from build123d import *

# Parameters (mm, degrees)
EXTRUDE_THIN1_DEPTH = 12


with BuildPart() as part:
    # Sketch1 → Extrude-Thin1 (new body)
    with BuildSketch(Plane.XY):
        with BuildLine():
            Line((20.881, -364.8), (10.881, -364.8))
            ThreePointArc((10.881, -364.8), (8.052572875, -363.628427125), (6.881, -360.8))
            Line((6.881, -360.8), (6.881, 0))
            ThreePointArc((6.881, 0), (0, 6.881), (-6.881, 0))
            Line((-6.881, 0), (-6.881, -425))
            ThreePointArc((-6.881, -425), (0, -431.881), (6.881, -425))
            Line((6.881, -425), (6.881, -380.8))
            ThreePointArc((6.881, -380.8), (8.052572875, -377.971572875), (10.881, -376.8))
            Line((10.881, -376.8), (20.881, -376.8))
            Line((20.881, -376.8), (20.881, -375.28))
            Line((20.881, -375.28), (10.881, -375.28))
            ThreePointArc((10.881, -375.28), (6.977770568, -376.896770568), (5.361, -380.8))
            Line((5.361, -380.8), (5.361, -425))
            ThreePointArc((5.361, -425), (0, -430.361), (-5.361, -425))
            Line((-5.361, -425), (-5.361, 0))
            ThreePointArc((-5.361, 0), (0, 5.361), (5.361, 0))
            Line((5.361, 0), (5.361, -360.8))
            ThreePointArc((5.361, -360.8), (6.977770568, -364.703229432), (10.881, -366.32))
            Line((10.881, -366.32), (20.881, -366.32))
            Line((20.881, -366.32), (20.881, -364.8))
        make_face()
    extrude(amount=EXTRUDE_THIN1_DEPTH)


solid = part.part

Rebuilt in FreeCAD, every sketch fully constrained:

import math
import FreeCAD as App
import Part
import Sketcher

V = App.Vector

doc = App.newDocument("Part")
body = doc.addObject("PartDesign::Body", "Body")

# Sketch on XY plane
sketch1 = body.newObject("Sketcher::SketchObject", "Sketch")
sketch1.AttachmentSupport = (doc.getObject("XY_Plane"), [""])
sketch1.MapMode = "FlatFace"
sketch1.addGeometry([
    Part.LineSegment(V(20.881, -364.8, 0), V(10.881, -364.8, 0)),  # 0
    Part.ArcOfCircle(Part.Circle(V(10.881, -360.8, 0), V(0, 0, 1), 4), math.radians(180), math.radians(270)),  # 1
    Part.LineSegment(V(6.881, -360.8, 0), V(6.881, 0, 0)),  # 2
    Part.ArcOfCircle(Part.Circle(V(0, 0, 0), V(0, 0, 1), 6.881), math.radians(0), math.radians(180)),  # 3
    Part.LineSegment(V(-6.881, 0, 0), V(-6.881, -425, 0)),  # 4
    Part.ArcOfCircle(Part.Circle(V(0, -425, 0), V(0, 0, 1), 6.881), math.radians(180), math.radians(360)),  # 5
    Part.LineSegment(V(6.881, -425, 0), V(6.881, -380.8, 0)),  # 6
    Part.ArcOfCircle(Part.Circle(V(10.881, -380.8, 0), V(0, 0, 1), 4), math.radians(90), math.radians(180)),  # 7
    Part.LineSegment(V(10.881, -376.8, 0), V(20.881, -376.8, 0)),  # 8
    Part.LineSegment(V(20.881, -376.8, 0), V(20.881, -375.28, 0)),  # 9
    Part.LineSegment(V(20.881, -375.28, 0), V(10.881, -375.28, 0)),  # 10
    Part.ArcOfCircle(Part.Circle(V(10.881, -380.8, 0), V(0, 0, 1), 5.52), math.radians(90), math.radians(180)),  # 11
    Part.LineSegment(V(5.361, -380.8, 0), V(5.361, -425, 0)),  # 12
    Part.ArcOfCircle(Part.Circle(V(0, -425, 0), V(0, 0, 1), 5.361), math.radians(180), math.radians(360)),  # 13
    Part.LineSegment(V(-5.361, -425, 0), V(-5.361, 0, 0)),  # 14
    Part.ArcOfCircle(Part.Circle(V(0, 0, 0), V(0, 0, 1), 5.361), math.radians(0), math.radians(180)),  # 15
    Part.LineSegment(V(5.361, 0, 0), V(5.361, -360.8, 0)),  # 16
    Part.ArcOfCircle(Part.Circle(V(10.881, -360.8, 0), V(0, 0, 1), 5.52), math.radians(-180), math.radians(-90)),  # 17
    Part.LineSegment(V(10.881, -366.32, 0), V(20.881, -366.32, 0)),  # 18
    Part.LineSegment(V(20.881, -366.32, 0), V(20.881, -364.8, 0)),  # 19
], False)
sketch1.addConstraint([
    Sketcher.Constraint("Tangent", 0, 2, 1, 2),
    Sketcher.Constraint("Tangent", 1, 1, 2, 1),
    Sketcher.Constraint("Tangent", 2, 2, 3, 1),
    Sketcher.Constraint("Tangent", 3, 2, 4, 1),
    Sketcher.Constraint("Tangent", 4, 2, 5, 1),
    Sketcher.Constraint("Tangent", 5, 2, 6, 1),
    Sketcher.Constraint("Tangent", 6, 2, 7, 2),
    Sketcher.Constraint("Tangent", 7, 1, 8, 1),
    Sketcher.Constraint("Coincident", 8, 2, 9, 1),
    Sketcher.Constraint("Coincident", 9, 2, 10, 1),
    Sketcher.Constraint("Tangent", 10, 2, 11, 1),
    Sketcher.Constraint("Tangent", 11, 2, 12, 1),
    Sketcher.Constraint("Tangent", 12, 2, 13, 2),
    Sketcher.Constraint("Tangent", 13, 1, 14, 1),
    Sketcher.Constraint("Tangent", 14, 2, 15, 2),
    Sketcher.Constraint("Tangent", 15, 1, 16, 1),
    Sketcher.Constraint("Tangent", 16, 2, 17, 1),
    Sketcher.Constraint("Tangent", 17, 2, 18, 1),
    Sketcher.Constraint("Coincident", 18, 2, 19, 1),
    Sketcher.Constraint("Coincident", 19, 2, 0, 1),
    Sketcher.Constraint("Horizontal", 0),
    Sketcher.Constraint("Vertical", 2),
    Sketcher.Constraint("Vertical", 4),
    Sketcher.Constraint("Vertical", 6),
    Sketcher.Constraint("Horizontal", 8),
    Sketcher.Constraint("Vertical", 9),
    Sketcher.Constraint("Horizontal", 10),
    Sketcher.Constraint("Vertical", 12),
    Sketcher.Constraint("Vertical", 14),
    Sketcher.Constraint("Vertical", 16),
    Sketcher.Constraint("Horizontal", 18),
    Sketcher.Constraint("Vertical", 19),
    Sketcher.Constraint("Coincident", 3, 3, -1, 1),
    Sketcher.Constraint("Coincident", 15, 3, -1, 1),
    Sketcher.Constraint("Coincident", 11, 3, 7, 3),
    Sketcher.Constraint("Coincident", 13, 3, 5, 3),
    Sketcher.Constraint("Coincident", 17, 3, 1, 3),
    Sketcher.Constraint("Equal", 3, 5),
    Sketcher.Constraint("Equal", 1, 7),
    Sketcher.Constraint("Vertical", 9, 2, 18, 2),
    Sketcher.Constraint("Radius", 1, 4.0),
    Sketcher.Constraint("DistanceX", 0, 2, 0, 1, 10.0),
    Sketcher.Constraint("DistanceY", 4, 2, 4, 1, 425.0),
    Sketcher.Constraint("Radius", 11, 5.52),
    Sketcher.Constraint("DistanceY", 2, 1, 2, 2, 360.8),
    Sketcher.Constraint("DistanceY", 6, 1, 6, 2, 44.2),
    Sketcher.Constraint("Radius", 3, 6.881),
])
pad1 = body.newObject("PartDesign::Pad", "Pad")
pad1.Profile = sketch1
pad1.Length = 12

doc.recompute()
